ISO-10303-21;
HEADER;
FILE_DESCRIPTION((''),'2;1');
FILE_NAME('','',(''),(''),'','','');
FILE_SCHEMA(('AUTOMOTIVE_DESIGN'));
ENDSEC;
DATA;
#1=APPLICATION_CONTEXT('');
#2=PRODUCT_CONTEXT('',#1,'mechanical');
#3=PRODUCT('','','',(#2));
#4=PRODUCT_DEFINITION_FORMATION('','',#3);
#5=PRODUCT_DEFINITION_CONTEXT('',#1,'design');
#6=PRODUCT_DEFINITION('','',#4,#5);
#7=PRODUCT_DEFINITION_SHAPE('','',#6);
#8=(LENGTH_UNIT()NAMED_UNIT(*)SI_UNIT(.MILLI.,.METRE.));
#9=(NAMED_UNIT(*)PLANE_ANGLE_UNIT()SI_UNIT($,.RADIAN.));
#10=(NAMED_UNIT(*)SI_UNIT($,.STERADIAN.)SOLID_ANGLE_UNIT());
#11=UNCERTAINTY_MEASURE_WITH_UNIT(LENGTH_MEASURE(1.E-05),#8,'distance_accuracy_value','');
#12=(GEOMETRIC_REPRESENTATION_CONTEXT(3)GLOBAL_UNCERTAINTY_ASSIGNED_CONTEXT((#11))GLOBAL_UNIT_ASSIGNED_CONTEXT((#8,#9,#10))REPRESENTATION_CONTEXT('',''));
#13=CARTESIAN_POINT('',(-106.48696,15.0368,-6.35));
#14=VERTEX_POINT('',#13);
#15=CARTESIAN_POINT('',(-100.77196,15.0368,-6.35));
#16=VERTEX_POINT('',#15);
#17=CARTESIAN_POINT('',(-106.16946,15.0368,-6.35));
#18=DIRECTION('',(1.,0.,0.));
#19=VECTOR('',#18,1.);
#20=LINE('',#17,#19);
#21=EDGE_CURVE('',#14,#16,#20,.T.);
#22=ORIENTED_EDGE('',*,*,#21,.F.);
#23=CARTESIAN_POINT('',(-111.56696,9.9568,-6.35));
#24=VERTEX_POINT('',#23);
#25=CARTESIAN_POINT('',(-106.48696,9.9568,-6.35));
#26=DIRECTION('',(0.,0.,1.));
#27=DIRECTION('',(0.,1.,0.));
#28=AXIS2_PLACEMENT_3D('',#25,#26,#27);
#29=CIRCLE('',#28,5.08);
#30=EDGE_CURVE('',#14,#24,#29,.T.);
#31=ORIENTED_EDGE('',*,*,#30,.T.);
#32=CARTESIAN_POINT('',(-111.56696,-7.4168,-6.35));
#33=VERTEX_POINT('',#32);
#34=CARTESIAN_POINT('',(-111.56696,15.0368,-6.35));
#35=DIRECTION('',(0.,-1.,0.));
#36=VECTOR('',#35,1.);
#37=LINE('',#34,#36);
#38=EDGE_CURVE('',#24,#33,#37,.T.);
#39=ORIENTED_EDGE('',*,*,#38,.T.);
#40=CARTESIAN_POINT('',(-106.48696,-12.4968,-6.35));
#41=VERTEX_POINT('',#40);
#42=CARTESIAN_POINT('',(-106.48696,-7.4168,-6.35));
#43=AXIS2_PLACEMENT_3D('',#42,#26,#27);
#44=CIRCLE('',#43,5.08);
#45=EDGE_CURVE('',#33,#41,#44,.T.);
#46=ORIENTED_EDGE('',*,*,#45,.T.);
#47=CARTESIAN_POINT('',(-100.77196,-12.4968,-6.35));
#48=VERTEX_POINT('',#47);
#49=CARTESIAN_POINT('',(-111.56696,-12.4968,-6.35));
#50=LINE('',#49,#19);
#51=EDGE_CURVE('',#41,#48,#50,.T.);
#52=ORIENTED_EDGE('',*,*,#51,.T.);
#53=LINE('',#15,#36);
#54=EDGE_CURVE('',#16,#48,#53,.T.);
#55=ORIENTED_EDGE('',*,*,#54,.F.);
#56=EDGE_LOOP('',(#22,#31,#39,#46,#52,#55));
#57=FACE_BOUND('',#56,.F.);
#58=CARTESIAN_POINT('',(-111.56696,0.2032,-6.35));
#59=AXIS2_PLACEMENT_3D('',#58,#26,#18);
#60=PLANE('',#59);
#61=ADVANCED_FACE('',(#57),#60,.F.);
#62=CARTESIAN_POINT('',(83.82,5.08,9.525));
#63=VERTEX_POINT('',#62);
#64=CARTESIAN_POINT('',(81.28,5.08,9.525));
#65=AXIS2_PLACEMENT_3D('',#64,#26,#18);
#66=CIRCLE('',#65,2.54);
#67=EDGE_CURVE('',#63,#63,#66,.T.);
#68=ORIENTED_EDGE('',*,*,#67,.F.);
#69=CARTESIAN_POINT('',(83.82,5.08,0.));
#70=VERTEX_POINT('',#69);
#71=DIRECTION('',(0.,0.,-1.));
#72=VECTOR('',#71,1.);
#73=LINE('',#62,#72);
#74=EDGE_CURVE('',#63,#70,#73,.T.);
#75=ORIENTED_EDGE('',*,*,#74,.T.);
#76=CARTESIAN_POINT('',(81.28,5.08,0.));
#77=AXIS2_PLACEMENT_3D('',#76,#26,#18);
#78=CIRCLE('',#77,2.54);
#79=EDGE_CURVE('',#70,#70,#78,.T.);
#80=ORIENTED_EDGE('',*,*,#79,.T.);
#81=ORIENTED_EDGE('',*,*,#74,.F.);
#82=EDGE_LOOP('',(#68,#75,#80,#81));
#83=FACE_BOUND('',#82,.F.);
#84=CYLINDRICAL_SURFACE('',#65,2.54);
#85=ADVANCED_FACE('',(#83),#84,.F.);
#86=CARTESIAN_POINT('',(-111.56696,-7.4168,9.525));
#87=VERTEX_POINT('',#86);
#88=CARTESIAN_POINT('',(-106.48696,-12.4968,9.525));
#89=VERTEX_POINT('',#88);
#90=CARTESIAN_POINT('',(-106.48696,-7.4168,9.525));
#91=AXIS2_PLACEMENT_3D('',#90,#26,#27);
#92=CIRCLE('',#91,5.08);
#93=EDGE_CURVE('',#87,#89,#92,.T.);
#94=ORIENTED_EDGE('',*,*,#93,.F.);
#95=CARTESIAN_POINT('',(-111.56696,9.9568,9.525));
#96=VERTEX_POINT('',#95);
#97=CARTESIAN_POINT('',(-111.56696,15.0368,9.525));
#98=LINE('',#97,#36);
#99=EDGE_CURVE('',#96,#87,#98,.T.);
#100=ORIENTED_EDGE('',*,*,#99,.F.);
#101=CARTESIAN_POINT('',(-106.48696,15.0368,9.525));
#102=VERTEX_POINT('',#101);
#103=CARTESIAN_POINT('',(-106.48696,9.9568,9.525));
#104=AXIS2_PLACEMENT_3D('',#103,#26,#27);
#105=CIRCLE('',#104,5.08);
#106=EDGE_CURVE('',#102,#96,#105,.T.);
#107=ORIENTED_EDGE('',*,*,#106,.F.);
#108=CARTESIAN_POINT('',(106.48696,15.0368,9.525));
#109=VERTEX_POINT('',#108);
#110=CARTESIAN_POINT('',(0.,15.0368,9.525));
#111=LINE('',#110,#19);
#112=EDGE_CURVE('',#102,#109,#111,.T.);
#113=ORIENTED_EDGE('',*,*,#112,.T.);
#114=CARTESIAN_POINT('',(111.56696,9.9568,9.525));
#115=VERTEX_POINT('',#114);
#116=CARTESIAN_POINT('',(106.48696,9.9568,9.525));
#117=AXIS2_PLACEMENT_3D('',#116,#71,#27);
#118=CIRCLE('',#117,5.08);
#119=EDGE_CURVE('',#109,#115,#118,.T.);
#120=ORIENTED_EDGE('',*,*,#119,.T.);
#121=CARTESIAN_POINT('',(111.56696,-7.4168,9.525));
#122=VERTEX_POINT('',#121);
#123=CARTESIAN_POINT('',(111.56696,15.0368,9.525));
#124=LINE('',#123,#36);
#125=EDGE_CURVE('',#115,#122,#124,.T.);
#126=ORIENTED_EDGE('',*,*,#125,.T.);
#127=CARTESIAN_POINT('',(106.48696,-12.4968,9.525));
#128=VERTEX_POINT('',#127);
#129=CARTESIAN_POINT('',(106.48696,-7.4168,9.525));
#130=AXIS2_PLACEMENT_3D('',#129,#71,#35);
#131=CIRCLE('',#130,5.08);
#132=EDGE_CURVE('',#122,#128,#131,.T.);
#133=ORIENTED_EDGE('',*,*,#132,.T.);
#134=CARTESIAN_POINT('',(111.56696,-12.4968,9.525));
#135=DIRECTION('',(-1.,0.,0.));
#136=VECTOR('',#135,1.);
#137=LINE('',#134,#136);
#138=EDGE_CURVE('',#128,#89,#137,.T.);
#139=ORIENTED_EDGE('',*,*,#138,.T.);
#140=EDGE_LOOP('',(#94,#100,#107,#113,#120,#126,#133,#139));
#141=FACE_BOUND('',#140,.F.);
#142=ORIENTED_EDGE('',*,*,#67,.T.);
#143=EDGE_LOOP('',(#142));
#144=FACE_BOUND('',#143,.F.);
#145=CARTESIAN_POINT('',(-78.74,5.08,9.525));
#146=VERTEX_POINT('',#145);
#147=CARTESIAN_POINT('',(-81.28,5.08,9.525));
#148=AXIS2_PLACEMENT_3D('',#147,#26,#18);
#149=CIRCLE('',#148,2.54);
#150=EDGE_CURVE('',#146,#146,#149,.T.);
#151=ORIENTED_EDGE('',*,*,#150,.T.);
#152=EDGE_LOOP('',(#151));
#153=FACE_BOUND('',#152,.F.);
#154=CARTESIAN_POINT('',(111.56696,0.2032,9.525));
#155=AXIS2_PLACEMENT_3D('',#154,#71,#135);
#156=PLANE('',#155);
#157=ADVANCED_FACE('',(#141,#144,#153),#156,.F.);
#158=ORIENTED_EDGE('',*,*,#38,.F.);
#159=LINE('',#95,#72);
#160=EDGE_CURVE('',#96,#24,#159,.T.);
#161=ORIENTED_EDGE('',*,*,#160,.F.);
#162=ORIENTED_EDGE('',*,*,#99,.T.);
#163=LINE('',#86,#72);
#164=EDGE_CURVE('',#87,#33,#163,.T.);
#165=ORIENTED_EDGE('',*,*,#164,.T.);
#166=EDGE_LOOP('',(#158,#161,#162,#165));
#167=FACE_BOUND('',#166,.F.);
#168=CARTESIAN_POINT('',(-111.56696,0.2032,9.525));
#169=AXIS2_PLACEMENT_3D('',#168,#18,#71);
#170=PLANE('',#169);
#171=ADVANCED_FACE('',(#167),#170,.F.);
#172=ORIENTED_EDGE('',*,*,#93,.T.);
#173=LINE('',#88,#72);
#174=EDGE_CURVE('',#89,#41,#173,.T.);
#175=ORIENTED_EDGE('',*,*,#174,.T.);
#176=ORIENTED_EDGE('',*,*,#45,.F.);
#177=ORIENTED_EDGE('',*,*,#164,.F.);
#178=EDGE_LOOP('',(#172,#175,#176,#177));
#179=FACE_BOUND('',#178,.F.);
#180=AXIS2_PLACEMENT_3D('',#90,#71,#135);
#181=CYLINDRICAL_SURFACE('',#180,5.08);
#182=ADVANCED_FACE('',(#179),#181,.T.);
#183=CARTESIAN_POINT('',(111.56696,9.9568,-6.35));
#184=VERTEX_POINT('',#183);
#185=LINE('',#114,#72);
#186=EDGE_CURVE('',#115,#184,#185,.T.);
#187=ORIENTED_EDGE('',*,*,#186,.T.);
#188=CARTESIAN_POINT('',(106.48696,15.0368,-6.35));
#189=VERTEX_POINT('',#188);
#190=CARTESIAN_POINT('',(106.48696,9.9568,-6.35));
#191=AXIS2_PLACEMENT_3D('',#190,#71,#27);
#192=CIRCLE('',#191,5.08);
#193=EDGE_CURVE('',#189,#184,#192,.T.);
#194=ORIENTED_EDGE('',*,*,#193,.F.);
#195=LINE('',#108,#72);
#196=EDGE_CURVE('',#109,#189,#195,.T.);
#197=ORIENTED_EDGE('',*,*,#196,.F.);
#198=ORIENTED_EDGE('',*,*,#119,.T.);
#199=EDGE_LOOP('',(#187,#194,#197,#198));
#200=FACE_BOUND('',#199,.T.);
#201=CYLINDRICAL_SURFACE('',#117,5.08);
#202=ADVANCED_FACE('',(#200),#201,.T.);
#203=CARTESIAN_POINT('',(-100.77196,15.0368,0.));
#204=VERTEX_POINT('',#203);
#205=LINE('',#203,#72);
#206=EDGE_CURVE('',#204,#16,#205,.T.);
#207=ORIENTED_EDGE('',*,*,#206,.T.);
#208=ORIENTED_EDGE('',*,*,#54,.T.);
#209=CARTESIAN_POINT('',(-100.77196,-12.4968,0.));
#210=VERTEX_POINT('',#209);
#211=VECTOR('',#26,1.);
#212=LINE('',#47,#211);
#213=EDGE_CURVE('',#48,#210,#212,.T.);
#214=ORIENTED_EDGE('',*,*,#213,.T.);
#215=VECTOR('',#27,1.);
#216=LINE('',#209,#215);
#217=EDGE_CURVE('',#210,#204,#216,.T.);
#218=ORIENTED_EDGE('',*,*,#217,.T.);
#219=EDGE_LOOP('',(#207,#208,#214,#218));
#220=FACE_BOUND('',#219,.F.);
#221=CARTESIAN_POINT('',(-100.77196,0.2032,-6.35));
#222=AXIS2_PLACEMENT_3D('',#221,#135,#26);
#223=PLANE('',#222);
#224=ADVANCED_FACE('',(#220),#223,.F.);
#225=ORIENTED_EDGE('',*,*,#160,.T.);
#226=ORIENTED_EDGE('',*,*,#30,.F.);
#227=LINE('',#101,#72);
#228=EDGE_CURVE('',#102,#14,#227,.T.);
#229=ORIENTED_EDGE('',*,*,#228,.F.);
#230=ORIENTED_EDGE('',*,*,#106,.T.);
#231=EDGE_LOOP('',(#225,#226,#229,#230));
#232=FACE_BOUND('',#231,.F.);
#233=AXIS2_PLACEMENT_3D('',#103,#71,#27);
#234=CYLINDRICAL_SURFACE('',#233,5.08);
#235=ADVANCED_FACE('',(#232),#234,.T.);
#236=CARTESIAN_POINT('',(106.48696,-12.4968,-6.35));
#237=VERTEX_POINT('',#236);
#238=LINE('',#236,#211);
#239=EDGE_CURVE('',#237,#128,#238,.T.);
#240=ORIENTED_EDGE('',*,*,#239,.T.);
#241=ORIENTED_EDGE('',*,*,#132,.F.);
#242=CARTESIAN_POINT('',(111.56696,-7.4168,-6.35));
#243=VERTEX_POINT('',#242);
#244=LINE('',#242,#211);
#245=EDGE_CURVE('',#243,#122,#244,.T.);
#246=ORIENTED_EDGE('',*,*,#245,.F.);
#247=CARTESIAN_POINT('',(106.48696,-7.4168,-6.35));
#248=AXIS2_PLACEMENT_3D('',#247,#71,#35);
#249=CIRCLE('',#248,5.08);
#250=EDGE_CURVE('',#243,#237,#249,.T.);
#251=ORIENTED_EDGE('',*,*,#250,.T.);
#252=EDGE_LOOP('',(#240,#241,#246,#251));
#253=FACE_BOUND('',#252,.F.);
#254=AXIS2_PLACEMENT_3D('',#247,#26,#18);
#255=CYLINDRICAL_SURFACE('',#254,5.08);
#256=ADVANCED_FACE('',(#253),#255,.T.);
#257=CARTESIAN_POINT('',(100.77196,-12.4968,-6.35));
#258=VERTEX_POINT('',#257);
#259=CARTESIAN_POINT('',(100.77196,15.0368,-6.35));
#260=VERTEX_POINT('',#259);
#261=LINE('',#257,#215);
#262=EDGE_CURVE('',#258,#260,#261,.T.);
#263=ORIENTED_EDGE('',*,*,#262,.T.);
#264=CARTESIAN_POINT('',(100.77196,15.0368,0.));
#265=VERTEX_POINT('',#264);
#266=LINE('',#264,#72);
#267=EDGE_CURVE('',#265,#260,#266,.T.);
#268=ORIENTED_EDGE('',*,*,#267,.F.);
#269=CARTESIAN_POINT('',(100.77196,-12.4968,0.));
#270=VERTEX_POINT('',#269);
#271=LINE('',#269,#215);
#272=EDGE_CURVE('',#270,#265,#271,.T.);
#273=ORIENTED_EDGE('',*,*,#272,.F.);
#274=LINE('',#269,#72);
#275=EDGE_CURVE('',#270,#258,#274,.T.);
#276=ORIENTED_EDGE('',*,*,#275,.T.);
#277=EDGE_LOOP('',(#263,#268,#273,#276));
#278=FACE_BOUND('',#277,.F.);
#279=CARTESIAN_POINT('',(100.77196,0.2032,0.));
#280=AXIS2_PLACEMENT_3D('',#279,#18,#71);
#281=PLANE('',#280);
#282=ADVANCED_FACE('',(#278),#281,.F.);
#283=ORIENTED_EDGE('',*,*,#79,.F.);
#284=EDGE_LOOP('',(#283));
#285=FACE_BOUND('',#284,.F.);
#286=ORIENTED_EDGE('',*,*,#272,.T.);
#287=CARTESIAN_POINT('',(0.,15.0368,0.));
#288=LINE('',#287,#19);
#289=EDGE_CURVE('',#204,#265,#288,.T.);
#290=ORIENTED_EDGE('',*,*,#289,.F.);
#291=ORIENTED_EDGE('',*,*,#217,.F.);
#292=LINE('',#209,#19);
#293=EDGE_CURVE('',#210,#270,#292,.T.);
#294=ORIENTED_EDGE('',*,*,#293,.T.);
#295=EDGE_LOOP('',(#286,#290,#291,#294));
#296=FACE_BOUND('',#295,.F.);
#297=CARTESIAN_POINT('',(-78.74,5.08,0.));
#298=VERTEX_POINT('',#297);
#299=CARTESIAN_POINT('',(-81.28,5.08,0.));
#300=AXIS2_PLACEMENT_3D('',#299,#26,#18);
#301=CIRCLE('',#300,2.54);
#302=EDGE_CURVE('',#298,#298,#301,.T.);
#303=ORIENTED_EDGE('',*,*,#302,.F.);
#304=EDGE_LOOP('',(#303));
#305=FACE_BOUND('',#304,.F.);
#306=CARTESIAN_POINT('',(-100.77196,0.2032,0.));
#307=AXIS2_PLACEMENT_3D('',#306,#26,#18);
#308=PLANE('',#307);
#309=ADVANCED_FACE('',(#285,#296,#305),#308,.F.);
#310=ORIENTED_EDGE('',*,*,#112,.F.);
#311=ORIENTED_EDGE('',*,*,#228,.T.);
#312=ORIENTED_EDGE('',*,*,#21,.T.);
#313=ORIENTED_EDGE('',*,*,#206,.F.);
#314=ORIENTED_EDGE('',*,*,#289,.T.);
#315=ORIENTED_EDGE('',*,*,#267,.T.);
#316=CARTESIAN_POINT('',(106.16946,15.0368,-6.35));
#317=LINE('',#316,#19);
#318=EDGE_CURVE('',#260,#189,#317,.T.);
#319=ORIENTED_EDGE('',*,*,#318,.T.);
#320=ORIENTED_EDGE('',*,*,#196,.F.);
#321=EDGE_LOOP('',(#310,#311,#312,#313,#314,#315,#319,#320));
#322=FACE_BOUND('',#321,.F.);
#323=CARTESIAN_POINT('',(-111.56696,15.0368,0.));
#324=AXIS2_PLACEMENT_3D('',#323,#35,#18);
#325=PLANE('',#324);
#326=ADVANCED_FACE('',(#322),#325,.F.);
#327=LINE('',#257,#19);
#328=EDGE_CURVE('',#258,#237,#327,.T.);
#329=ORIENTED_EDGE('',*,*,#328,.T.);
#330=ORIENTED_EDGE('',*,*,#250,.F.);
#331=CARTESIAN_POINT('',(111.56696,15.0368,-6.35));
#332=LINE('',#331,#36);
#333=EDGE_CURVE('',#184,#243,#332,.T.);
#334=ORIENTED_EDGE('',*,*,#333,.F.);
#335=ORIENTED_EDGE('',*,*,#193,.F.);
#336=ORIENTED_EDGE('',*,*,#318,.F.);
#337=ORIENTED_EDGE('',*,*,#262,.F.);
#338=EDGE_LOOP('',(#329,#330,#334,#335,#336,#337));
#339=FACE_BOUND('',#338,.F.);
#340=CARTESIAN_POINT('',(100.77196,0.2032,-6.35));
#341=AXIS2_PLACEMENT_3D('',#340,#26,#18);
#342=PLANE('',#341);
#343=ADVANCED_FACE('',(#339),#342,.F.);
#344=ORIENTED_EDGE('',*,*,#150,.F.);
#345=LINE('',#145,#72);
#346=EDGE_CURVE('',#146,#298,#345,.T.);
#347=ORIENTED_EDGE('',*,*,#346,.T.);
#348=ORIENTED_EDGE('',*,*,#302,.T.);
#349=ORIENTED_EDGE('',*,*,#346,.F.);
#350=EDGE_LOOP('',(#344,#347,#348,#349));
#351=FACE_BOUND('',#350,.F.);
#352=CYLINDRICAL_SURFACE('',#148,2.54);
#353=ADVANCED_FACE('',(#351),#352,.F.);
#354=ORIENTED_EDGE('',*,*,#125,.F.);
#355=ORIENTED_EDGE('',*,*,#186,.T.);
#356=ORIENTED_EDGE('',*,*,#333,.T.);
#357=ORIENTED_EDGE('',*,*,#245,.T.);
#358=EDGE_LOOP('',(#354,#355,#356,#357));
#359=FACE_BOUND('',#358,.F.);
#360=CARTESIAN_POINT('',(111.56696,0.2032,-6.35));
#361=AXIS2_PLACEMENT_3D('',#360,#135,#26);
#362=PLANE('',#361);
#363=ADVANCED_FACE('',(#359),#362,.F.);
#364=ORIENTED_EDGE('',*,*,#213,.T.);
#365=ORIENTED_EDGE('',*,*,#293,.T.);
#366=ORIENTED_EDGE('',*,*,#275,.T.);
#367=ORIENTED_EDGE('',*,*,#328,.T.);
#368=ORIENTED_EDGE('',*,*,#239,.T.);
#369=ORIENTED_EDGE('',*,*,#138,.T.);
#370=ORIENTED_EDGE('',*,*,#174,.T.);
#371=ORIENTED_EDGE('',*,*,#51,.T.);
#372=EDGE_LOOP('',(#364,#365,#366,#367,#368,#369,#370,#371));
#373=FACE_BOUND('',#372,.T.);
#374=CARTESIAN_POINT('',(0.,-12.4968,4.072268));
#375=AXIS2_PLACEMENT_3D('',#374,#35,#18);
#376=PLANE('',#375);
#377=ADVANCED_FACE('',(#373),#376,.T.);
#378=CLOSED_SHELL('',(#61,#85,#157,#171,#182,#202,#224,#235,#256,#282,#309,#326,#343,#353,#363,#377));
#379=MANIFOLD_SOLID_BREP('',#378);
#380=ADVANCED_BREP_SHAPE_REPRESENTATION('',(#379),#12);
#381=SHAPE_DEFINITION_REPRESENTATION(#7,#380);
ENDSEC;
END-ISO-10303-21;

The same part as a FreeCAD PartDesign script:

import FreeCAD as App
import Part
import Sketcher

V = App.Vector
Q = App.Units.Quantity


def edges_at(feature, points):
    """Names of the edges that pass closest to the given points."""
    edges = feature.Shape.Edges
    near = lambda p: min(range(len(edges)), key=lambda i: edges[i].distToShape(Part.Vertex(*p))[0])
    return sorted({f"Edge{near(p) + 1}" for p in points})

doc = App.newDocument("Part")
body = doc.addObject("PartDesign::Body", "Body")

# Sketch on XY plane
sketch1 = doc.addObject("Sketcher::SketchObject", "Sketch")
body.addObject(sketch1)
sketch1.AttachmentSupport = (doc.XY_Plane, [""])
sketch1.MapMode = "FlatFace"
sketch1.addGeometry([
    Part.LineSegment(V(-112, 15, 0), V(-112, 0, 0)),
    Part.LineSegment(V(-112, 0, 0), V(112, 0, 0)),
    Part.LineSegment(V(112, 0, 0), V(112, 15, 0)),
    Part.LineSegment(V(112, 15, 0), V(-112, 15, 0)),
], False)
sketch1.addConstraint([
    Sketcher.Constraint("Coincident", 0, 2, 1, 1),
    Sketcher.Constraint("Coincident", 1, 2, 2, 1),
    Sketcher.Constraint("Coincident", 2, 2, 3, 1),
    Sketcher.Constraint("Coincident", 3, 2, 0, 1),
    Sketcher.Constraint("Vertical", 0),
    Sketcher.Constraint("Horizontal", 1),
    Sketcher.Constraint("Vertical", 2),
    Sketcher.Constraint("Horizontal", 3),
    Sketcher.Constraint("DistanceY", 0, 2, 0, 1, Q("0.584 in")),
    Sketcher.Constraint("DistanceX", 1, 1, 1, 2, Q("8.7848 in")),
    Sketcher.Constraint("DistanceY", -1, 1, 0, 2, Q("0.008 in")),
    Sketcher.Constraint("DistanceX", 0, 2, -1, 1, Q("4.3924 in")),
])
pad1 = doc.addObject("PartDesign::Pad", "Pad")
body.addObject(pad1)
pad1.Profile = sketch1
pad1.Length = Q("0.375 in")

# Sketch on XY plane
sketch2 = doc.addObject("Sketcher::SketchObject", "Sketch001")
body.addObject(sketch2)
sketch2.AttachmentSupport = (doc.XY_Plane, [""])
sketch2.MapMode = "FlatFace"
sketch2.AttachmentOffset = App.Placement(V(0, 0, 0.375 * 25.4), App.Rotation())
sketch2.addGeometry([
    Part.Circle(V(-81.3, 5.1, 0), V(0, 0, 1), 2.5),
    Part.Circle(V(81.3, 5.1, 0), V(0, 0, 1), 2.5),
], False)
sketch2.addConstraint([
    Sketcher.Constraint("Equal", 0, 1),
    Sketcher.Constraint("Symmetric", 0, 3, 1, 3, -2),
    Sketcher.Constraint("Diameter", 0, Q("0.2 in")),
    Sketcher.Constraint("DistanceX", 0, 3, -1, 1, Q("3.2 in")),
    Sketcher.Constraint("DistanceY", -1, 1, 0, 3, Q("0.2 in")),
])
pocket1 = doc.addObject("PartDesign::Pocket", "Pocket")
body.addObject(pocket1)
pocket1.Profile = sketch2
pocket1.Type = "ThroughAll"

# Sketch on XY plane
sketch3 = doc.addObject("Sketcher::SketchObject", "Sketch002")
body.addObject(sketch3)
sketch3.AttachmentSupport = (doc.XY_Plane, [""])
sketch3.MapMode = "FlatFace"
sketch3.addGeometry([
    Part.LineSegment(V(-112, 0, 0), V(-112, 15, 0)),  # 0
    Part.LineSegment(V(-112, 15, 0), V(-101, 15, 0)),  # 1
    Part.LineSegment(V(-101, 15, 0), V(-101, 0, 0)),  # 2
    Part.LineSegment(V(-101, 0, 0), V(-112, 0, 0)),  # 3
    Part.LineSegment(V(101, 0, 0), V(101, 15, 0)),  # 4
    Part.LineSegment(V(101, 15, 0), V(112, 15, 0)),  # 5
    Part.LineSegment(V(112, 15, 0), V(112, 0, 0)),  # 6
    Part.LineSegment(V(112, 0, 0), V(101, 0, 0)),  # 7
], False)
sketch3.addConstraint([
    Sketcher.Constraint("Coincident", 0, 2, 1, 1),
    Sketcher.Constraint("Coincident", 1, 2, 2, 1),
    Sketcher.Constraint("Coincident", 2, 2, 3, 1),
    Sketcher.Constraint("Coincident", 3, 2, 0, 1),
    Sketcher.Constraint("Coincident", 4, 2, 5, 1),
    Sketcher.Constraint("Coincident", 5, 2, 6, 1),
    Sketcher.Constraint("Coincident", 6, 2, 7, 1),
    Sketcher.Constraint("Coincident", 7, 2, 4, 1),
    Sketcher.Constraint("Vertical", 0),
    Sketcher.Constraint("Horizontal", 1),
    Sketcher.Constraint("Vertical", 2),
    Sketcher.Constraint("Horizontal", 3),
    Sketcher.Constraint("Vertical", 4),
    Sketcher.Constraint("Horizontal", 5),
    Sketcher.Constraint("Vertical", 6),
    Sketcher.Constraint("Horizontal", 7),
    Sketcher.Constraint("Symmetric", 1, 2, 4, 2, -2),
    Sketcher.Constraint("Symmetric", 3, 2, 6, 2, -2),
    Sketcher.Constraint("DistanceX", 1, 1, 1, 2, Q("0.425 in")),
    Sketcher.Constraint("DistanceY", 0, 1, 0, 2, Q("0.584 in")),
    Sketcher.Constraint("DistanceY", -1, 1, 0, 2, Q("0.592 in")),
    Sketcher.Constraint("DistanceX", 0, 2, -1, 1, Q("4.3924 in")),
])
pad2 = doc.addObject("PartDesign::Pad", "Pad001")
body.addObject(pad2)
pad2.Profile = sketch3
pad2.Length = Q("0.25 in")
pad2.Reversed = True

# Sketch on XZ plane
sketch4 = doc.addObject("Sketcher::SketchObject", "Sketch003")
body.addObject(sketch4)
sketch4.AttachmentSupport = (doc.XZ_Plane, [""])
sketch4.MapMode = "FlatFace"
sketch4.AttachmentOffset = App.Placement(V(0, 0, -0.008 * 25.4), App.Rotation())
sketch4.addGeometry([
    Part.LineSegment(V(101, -6, 0), V(112, -6, 0)),  # 0
    Part.LineSegment(V(112, -6, 0), V(112, 10, 0)),  # 1
    Part.LineSegment(V(112, 10, 0), V(-112, 10, 0)),  # 2
    Part.LineSegment(V(-112, 10, 0), V(-112, -6, 0)),  # 3
    Part.LineSegment(V(-112, -6, 0), V(-101, -6, 0)),  # 4
    Part.LineSegment(V(-101, -6, 0), V(-101, 0, 0)),  # 5
    Part.LineSegment(V(-101, 0, 0), V(101, 0, 0)),  # 6
    Part.LineSegment(V(101, 0, 0), V(101, -6, 0)),  # 7
], False)
sketch4.addConstraint([
    Sketcher.Constraint("Coincident", 0, 2, 1, 1),
    Sketcher.Constraint("Coincident", 1, 2, 2, 1),
    Sketcher.Constraint("Coincident", 2, 2, 3, 1),
    Sketcher.Constraint("Coincident", 3, 2, 4, 1),
    Sketcher.Constraint("Coincident", 4, 2, 5, 1),
    Sketcher.Constraint("Coincident", 5, 2, 6, 1),
    Sketcher.Constraint("Coincident", 6, 2, 7, 1),
    Sketcher.Constraint("Coincident", 7, 2, 0, 1),
    Sketcher.Constraint("Horizontal", 0),
    Sketcher.Constraint("Vertical", 1),
    Sketcher.Constraint("Horizontal", 2),
    Sketcher.Constraint("Vertical", 3),
    Sketcher.Constraint("Horizontal", 4),
    Sketcher.Constraint("Vertical", 5),
    Sketcher.Constraint("Horizontal", 6),
    Sketcher.Constraint("Vertical", 7),
    Sketcher.Constraint("Symmetric", 5, 2, 6, 2, -1, 1),
    Sketcher.Constraint("Symmetric", 0, 2, 3, 2, -2),
    Sketcher.Constraint("DistanceY", 5, 1, 5, 2, Q("0.25 in")),
    Sketcher.Constraint("DistanceX", 0, 1, 0, 2, Q("0.425 in")),
    Sketcher.Constraint("DistanceY", 1, 1, 1, 2, Q("0.625 in")),
    Sketcher.Constraint("DistanceX", 2, 2, 2, 1, Q("8.7848 in")),
])
pad3 = doc.addObject("PartDesign::Pad", "Pad002")
body.addObject(pad3)
pad3.Profile = sketch4
pad3.Length = Q("0.5 in")
doc.recompute()

fillet = doc.addObject("PartDesign::Fillet", "Fillet")
body.addObject(fillet)
fillet.Base = (pad3, edges_at(pad3, [
    (111.567, -12.497, 1.587),
    (111.567, 15.037, 1.587),
    (-111.567, -12.497, 1.587),
    (-111.567, 15.037, 1.587),
]))
fillet.Radius = Q("0.2 in")

doc.recompute()
